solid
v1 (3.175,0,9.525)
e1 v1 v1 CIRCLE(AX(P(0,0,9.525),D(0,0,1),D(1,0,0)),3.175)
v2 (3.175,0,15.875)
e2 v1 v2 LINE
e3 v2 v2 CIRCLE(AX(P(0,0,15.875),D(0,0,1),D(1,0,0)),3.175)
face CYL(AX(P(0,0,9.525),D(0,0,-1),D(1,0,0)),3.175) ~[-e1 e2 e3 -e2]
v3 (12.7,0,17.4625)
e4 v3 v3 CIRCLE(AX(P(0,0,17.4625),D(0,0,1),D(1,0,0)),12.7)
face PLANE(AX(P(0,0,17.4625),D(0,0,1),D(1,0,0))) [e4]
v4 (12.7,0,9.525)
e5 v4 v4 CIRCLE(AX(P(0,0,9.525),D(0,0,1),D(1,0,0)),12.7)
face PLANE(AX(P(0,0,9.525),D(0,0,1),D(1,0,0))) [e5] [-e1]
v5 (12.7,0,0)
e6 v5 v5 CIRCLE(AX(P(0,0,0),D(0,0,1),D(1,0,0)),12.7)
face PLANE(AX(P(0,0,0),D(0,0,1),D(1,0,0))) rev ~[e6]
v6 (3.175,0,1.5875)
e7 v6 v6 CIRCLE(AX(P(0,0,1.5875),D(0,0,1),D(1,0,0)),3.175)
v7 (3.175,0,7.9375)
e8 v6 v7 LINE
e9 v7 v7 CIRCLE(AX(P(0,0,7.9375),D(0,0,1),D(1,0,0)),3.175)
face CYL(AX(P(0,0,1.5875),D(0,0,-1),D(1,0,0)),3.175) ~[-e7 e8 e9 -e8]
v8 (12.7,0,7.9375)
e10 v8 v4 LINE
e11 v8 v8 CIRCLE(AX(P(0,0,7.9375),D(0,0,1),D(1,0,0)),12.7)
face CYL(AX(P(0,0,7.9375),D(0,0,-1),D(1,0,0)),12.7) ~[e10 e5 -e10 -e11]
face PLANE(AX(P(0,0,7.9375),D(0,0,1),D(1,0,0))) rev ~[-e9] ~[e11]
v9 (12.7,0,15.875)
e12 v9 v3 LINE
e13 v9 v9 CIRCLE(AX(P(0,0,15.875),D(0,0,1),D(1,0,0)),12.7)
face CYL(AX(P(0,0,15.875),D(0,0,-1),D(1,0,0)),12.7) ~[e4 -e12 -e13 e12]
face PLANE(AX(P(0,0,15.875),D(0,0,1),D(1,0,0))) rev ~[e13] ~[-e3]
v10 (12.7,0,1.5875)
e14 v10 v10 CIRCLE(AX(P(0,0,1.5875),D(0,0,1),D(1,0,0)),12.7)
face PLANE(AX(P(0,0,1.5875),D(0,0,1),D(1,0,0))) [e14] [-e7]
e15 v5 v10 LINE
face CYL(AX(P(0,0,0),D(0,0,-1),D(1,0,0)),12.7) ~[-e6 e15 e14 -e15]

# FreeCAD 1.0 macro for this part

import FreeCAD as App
import Part
import Sketcher
Q = App.Units.Quantity

doc = App.newDocument("Part")
body = doc.addObject("PartDesign::Body", "Body")

# Sketch on XY plane
sketch1 = doc.addObject("Sketcher::SketchObject", "Sketch")
body.addObject(sketch1)
sketch1.AttachmentSupport = (doc.XY_Plane, [""])
sketch1.MapMode = "FlatFace"
sketch1.addGeometry(Part.Circle(App.Vector(0, 0, 0), App.Vector(0, 0, 1), 12.7), False)
sketch1.addConstraint([
    Sketcher.Constraint("Coincident", 0, 3, -1, 1),
    Sketcher.Constraint("Diameter", 0, Q("1 in")),
])
pad1 = doc.addObject("PartDesign::Pad", "Pad")
body.addObject(pad1)
pad1.Profile = sketch1
pad1.Length = Q("0.0625 in")

# Sketch on XY plane
sketch2 = doc.addObject("Sketcher::SketchObject", "Sketch001")
body.addObject(sketch2)
sketch2.AttachmentSupport = (doc.XY_Plane, [""])
sketch2.MapMode = "FlatFace"
sketch2.AttachmentOffset = App.Placement(App.Vector(0, 0, 0.0625 * 25.4), App.Rotation())
sketch2.addGeometry(Part.Circle(App.Vector(0, 0, 0), App.Vector(0, 0, 1), 3.175), False)
sketch2.addConstraint([
    Sketcher.Constraint("Coincident", 0, 3, -1, 1),
    Sketcher.Constraint("Diameter", 0, Q("0.25 in")),
])
pad2 = doc.addObject("PartDesign::Pad", "Pad001")
body.addObject(pad2)
pad2.Profile = sketch2
pad2.Length = Q("0.25 in")

# Sketch on XY plane
sketch3 = doc.addObject("Sketcher::SketchObject", "Sketch002")
body.addObject(sketch3)
sketch3.AttachmentSupport = (doc.XY_Plane, [""])
sketch3.MapMode = "FlatFace"
sketch3.AttachmentOffset = App.Placement(App.Vector(0, 0, 0.3125 * 25.4), App.Rotation())
sketch3.addGeometry(Part.Circle(App.Vector(0, 0, 0), App.Vector(0, 0, 1), 12.7), False)
sketch3.addConstraint([
    Sketcher.Constraint("Coincident", 0, 3, -1, 1),
    Sketcher.Constraint("Diameter", 0, Q("1 in")),
])
pad3 = doc.addObject("PartDesign::Pad", "Pad002")
body.addObject(pad3)
pad3.Profile = sketch3
pad3.Length = Q("0.0625 in")

# Sketch on XY plane
sketch4 = doc.addObject("Sketcher::SketchObject", "Sketch003")
body.addObject(sketch4)
sketch4.AttachmentSupport = (doc.XY_Plane, [""])
sketch4.MapMode = "FlatFace"
sketch4.AttachmentOffset = App.Placement(App.Vector(0, 0, 0.375 * 25.4), App.Rotation())
sketch4.addGeometry(Part.Circle(App.Vector(0, 0, 0), App.Vector(0, 0, 1), 3.175), False)
sketch4.addConstraint([
    Sketcher.Constraint("Coincident", 0, 3, -1, 1),
    Sketcher.Constraint("Diameter", 0, Q("0.25 in")),
])
pad4 = doc.addObject("PartDesign::Pad", "Pad003")
body.addObject(pad4)
pad4.Profile = sketch4
pad4.Length = Q("0.25 in")

# Sketch on XY plane
sketch5 = doc.addObject("Sketcher::SketchObject", "Sketch004")
body.addObject(sketch5)
sketch5.AttachmentSupport = (doc.XY_Plane, [""])
sketch5.MapMode = "FlatFace"
sketch5.AttachmentOffset = App.Placement(App.Vector(0, 0, 0.625 * 25.4), App.Rotation())
sketch5.addGeometry(Part.Circle(App.Vector(0, 0, 0), App.Vector(0, 0, 1), 12.7), False)
sketch5.addConstraint([
    Sketcher.Constraint("Coincident", 0, 3, -1, 1),
    Sketcher.Constraint("Diameter", 0, Q("1 in")),
])
pad5 = doc.addObject("PartDesign::Pad", "Pad004")
body.addObject(pad5)
pad5.Profile = sketch5
pad5.Length = Q("0.0625 in")

doc.recompute()
